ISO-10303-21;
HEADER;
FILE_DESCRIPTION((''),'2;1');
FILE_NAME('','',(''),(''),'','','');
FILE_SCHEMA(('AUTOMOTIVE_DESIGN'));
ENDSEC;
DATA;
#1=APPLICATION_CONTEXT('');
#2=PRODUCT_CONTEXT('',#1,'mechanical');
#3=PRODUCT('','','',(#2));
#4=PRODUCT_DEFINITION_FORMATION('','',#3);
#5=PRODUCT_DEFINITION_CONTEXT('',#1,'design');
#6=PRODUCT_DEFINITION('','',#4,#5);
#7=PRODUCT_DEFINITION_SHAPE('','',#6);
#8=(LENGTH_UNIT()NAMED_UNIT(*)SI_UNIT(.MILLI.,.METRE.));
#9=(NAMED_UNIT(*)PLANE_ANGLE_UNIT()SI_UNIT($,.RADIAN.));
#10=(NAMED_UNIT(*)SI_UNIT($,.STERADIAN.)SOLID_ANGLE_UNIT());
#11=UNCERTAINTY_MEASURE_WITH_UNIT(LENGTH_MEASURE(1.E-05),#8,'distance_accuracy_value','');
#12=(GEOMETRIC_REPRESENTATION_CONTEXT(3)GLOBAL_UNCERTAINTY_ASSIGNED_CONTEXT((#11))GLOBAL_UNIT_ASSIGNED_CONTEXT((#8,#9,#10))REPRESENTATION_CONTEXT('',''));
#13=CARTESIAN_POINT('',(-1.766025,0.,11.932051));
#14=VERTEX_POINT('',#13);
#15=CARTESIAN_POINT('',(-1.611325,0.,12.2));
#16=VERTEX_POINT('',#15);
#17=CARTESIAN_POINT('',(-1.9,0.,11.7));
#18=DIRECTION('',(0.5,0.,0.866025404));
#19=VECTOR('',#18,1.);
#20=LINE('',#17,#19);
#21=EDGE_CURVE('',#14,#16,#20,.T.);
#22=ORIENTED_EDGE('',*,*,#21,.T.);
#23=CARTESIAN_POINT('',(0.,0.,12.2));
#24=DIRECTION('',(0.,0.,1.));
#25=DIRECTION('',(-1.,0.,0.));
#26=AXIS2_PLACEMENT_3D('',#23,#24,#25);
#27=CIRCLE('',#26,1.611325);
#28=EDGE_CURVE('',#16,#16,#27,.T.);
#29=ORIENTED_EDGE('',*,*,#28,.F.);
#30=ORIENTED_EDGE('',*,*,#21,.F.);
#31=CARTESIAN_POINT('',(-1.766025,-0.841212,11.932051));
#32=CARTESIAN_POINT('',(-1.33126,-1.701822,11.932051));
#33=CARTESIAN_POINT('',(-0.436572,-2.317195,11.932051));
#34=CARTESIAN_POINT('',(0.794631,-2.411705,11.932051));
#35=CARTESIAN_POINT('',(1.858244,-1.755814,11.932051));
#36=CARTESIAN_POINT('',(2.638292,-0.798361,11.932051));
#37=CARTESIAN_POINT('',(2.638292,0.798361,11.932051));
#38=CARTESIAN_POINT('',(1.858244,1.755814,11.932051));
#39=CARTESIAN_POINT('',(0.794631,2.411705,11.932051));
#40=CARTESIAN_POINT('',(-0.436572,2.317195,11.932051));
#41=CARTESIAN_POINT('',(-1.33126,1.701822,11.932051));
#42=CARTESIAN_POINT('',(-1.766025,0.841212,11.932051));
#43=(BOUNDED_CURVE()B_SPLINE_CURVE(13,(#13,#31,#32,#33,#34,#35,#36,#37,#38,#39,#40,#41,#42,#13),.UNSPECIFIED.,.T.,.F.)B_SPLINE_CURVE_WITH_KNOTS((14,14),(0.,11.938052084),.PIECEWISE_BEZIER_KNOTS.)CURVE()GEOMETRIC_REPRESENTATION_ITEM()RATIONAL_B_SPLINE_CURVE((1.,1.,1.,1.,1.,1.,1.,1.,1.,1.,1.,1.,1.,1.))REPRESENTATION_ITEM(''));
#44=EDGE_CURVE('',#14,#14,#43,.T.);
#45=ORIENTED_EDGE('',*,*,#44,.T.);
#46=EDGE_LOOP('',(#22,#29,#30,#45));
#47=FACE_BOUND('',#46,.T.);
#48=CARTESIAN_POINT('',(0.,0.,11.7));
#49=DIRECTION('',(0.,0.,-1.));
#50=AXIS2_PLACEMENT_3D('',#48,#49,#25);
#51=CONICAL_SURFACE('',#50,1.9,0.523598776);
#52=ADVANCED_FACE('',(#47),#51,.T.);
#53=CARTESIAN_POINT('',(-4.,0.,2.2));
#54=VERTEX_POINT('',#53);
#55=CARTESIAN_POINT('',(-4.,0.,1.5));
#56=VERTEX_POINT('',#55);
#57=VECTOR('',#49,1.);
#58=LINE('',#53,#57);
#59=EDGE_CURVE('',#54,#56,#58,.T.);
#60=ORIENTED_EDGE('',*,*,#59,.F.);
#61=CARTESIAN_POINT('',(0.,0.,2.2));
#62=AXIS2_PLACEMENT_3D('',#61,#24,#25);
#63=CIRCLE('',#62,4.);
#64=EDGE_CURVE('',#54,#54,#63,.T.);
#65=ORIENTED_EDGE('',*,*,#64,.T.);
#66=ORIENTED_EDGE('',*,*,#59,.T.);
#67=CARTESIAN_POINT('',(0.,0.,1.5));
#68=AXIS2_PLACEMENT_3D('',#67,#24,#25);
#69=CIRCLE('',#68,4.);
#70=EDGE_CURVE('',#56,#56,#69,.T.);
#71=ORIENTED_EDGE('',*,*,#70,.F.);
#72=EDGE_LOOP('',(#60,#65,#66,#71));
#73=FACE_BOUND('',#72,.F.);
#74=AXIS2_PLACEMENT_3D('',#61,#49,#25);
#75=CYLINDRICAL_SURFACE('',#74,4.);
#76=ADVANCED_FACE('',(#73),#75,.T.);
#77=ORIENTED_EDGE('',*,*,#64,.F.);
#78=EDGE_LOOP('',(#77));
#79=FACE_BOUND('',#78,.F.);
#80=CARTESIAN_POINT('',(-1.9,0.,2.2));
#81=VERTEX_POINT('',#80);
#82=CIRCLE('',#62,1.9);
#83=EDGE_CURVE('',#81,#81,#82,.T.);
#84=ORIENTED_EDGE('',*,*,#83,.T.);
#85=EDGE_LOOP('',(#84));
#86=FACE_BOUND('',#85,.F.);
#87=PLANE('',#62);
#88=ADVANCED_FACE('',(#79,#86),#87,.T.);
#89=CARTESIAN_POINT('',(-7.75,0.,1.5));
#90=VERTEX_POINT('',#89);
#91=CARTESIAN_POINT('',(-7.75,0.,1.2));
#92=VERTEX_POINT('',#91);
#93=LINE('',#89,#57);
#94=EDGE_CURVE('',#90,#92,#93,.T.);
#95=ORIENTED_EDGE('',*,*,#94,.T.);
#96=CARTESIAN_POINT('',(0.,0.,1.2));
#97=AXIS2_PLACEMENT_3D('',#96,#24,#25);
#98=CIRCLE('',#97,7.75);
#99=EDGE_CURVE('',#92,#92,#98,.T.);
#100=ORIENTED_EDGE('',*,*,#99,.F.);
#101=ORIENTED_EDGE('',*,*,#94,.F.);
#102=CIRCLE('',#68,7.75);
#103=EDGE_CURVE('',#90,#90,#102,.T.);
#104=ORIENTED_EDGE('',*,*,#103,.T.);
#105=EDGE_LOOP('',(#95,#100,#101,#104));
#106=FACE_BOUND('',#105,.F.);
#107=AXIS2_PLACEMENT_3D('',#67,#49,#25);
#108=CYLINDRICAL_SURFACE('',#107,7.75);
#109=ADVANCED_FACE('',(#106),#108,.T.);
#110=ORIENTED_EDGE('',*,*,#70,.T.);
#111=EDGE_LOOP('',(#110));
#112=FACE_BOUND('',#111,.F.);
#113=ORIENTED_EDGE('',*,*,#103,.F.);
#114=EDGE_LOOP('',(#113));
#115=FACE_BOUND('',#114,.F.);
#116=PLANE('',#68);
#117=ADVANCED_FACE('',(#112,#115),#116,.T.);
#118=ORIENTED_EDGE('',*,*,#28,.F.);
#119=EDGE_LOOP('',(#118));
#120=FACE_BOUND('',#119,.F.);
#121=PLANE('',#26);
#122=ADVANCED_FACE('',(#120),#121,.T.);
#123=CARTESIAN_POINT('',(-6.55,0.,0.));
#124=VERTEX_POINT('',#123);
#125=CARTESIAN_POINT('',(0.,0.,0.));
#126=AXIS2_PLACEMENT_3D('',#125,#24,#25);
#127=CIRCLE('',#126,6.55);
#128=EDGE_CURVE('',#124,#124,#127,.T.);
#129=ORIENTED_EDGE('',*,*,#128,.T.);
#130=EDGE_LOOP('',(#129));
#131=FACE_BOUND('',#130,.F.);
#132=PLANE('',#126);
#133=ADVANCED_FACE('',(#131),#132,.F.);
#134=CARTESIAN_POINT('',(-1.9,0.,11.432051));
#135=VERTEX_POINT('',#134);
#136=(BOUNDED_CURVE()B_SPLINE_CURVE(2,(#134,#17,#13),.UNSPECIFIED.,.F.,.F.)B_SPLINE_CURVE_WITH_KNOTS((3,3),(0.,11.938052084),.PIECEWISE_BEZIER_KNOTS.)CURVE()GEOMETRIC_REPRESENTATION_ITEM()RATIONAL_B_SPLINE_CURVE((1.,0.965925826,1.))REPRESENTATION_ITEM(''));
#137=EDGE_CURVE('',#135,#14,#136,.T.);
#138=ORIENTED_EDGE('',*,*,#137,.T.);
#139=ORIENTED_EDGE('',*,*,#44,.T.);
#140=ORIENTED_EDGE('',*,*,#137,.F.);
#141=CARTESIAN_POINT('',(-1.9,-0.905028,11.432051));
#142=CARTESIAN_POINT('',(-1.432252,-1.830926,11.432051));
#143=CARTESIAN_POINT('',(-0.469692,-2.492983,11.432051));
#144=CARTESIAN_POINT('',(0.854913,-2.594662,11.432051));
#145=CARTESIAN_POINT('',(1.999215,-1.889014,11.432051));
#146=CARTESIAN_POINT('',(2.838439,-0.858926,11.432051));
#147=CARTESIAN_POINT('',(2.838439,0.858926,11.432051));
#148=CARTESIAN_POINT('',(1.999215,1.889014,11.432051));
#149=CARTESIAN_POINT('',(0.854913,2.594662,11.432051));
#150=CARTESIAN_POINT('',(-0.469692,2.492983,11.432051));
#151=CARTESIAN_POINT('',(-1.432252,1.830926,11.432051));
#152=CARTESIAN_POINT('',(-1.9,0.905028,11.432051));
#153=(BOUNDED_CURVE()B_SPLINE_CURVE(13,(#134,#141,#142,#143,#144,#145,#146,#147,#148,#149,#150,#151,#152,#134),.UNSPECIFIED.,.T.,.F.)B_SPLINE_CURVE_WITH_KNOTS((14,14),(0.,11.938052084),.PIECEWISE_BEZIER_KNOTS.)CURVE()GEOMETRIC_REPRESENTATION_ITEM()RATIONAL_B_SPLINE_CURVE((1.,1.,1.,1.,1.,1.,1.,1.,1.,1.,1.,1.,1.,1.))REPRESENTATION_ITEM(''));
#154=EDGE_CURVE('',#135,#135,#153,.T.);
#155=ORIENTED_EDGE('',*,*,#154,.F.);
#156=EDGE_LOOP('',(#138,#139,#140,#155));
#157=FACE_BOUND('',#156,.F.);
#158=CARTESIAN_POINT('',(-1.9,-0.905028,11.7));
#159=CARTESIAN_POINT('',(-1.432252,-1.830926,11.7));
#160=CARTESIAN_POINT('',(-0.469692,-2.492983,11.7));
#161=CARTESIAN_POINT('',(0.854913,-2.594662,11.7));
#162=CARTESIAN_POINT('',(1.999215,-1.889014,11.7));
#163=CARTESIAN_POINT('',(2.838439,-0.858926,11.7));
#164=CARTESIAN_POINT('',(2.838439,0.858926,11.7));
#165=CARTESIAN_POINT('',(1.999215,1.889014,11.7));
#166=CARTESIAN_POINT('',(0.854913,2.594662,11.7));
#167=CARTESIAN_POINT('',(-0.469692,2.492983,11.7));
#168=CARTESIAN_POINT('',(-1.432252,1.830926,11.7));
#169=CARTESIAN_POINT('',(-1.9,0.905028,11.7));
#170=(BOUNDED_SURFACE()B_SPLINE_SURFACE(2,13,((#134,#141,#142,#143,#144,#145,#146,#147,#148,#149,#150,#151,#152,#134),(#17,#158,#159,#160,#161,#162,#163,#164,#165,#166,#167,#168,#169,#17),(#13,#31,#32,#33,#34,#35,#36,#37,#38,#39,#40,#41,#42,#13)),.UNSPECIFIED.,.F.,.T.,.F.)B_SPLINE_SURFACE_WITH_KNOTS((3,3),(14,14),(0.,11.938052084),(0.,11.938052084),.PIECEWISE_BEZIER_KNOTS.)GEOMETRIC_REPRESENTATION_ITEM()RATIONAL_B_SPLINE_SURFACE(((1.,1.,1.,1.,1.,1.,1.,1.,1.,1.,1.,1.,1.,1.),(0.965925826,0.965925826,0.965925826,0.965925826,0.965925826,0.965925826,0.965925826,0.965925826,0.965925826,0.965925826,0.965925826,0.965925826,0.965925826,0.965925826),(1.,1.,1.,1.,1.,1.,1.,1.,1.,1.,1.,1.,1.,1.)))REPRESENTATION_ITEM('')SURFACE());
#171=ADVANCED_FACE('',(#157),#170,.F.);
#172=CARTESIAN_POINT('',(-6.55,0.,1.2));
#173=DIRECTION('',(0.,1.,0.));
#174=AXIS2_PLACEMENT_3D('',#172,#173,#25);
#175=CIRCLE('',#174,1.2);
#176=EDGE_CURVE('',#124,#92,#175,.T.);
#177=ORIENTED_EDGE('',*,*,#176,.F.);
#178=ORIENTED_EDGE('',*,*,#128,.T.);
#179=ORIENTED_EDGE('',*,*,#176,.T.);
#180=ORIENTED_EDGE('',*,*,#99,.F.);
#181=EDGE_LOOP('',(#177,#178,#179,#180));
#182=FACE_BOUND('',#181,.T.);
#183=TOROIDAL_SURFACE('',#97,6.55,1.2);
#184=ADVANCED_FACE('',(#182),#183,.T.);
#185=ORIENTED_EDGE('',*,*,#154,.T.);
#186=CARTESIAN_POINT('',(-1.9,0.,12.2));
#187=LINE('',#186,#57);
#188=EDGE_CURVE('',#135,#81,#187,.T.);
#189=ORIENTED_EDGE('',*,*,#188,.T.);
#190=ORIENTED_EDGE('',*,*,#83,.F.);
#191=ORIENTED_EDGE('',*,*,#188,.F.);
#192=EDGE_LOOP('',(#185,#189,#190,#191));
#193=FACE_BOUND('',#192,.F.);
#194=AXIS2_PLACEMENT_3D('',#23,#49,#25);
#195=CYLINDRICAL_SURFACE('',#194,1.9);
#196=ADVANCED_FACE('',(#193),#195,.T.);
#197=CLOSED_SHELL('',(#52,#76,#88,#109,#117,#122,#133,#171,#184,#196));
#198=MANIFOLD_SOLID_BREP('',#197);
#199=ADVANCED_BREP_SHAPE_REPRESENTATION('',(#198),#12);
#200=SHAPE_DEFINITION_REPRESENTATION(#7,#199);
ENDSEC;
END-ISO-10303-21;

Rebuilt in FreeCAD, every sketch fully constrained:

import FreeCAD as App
import Part
import Sketcher


def edges_at(feature, points):
    """Names of the edges that pass closest to the given points."""
    edges = feature.Shape.Edges
    near = lambda p: min(range(len(edges)), key=lambda i: edges[i].distToShape(Part.Vertex(*p))[0])
    return sorted({f"Edge{near(p) + 1}" for p in points})

doc = App.newDocument("Part")
body = doc.addObject("PartDesign::Body", "Body")

sketch1 = body.newObject("Sketcher::SketchObject", "Sketch")
sketch1.AttachmentSupport = (doc.getObject("XZ_Plane"), [""])
sketch1.MapMode = "FlatFace"
sketch1.addGeometry([
    Part.LineSegment(App.Vector(-7.8, 0, 0), App.Vector(0, 0, 0)),
    Part.LineSegment(App.Vector(0, 0, 0), App.Vector(0, 12.2, 0)),
    Part.LineSegment(App.Vector(0, 12.2, 0), App.Vector(-1.9, 12.2, 0)),
    Part.LineSegment(App.Vector(-1.9, 12.2, 0), App.Vector(-1.9, 2.2, 0)),
    Part.LineSegment(App.Vector(-1.9, 2.2, 0), App.Vector(-4, 2.2, 0)),
    Part.LineSegment(App.Vector(-4, 2.2, 0), App.Vector(-4, 1.5, 0)),
    Part.LineSegment(App.Vector(-4, 1.5, 0), App.Vector(-7.8, 1.5, 0)),
    Part.LineSegment(App.Vector(-7.8, 1.5, 0), App.Vector(-7.8, 0, 0)),
], False)
sketch1.addConstraint([
    Sketcher.Constraint("Coincident", 0, 2, 1, 1),
    Sketcher.Constraint("Coincident", 1, 2, 2, 1),
    Sketcher.Constraint("Coincident", 2, 2, 3, 1),
    Sketcher.Constraint("Coincident", 3, 2, 4, 1),
    Sketcher.Constraint("Coincident", 4, 2, 5, 1),
    Sketcher.Constraint("Coincident", 5, 2, 6, 1),
    Sketcher.Constraint("Coincident", 6, 2, 7, 1),
    Sketcher.Constraint("Coincident", 7, 2, 0, 1),
    Sketcher.Constraint("Horizontal", 0),
    Sketcher.Constraint("Vertical", 1),
    Sketcher.Constraint("Horizontal", 2),
    Sketcher.Constraint("Vertical", 3),
    Sketcher.Constraint("Horizontal", 4),
    Sketcher.Constraint("Vertical", 5),
    Sketcher.Constraint("Horizontal", 6),
    Sketcher.Constraint("Vertical", 7),
    Sketcher.Constraint("Coincident", 0, 2, -1, 1),
    Sketcher.Constraint("DistanceY", 3, 2, 3, 1, 10.0),
    Sketcher.Constraint("DistanceX", 2, 2, 2, 1, 1.9),
    Sketcher.Constraint("DistanceX", 4, 2, 4, 1, 2.1),
    Sketcher.Constraint("DistanceY", 1, 1, 1, 2, 12.2),
    Sketcher.Constraint("DistanceY", 5, 2, 5, 1, 0.7),
    Sketcher.Constraint("DistanceX", 0, 1, 0, 2, 7.75),
])
revolution = body.newObject("PartDesign::Revolution", "Revolution")
revolution.Profile = sketch1
revolution.ReferenceAxis = (sketch1, ["V_Axis"])
revolution.Angle = 360
doc.recompute()

fillet = body.newObject("PartDesign::Fillet", "Fillet")
fillet.Base = (revolution, edges_at(revolution, [(7.75, 0, 0)]))
fillet.Radius = 1.2
doc.recompute()

chamfer = body.newObject("PartDesign::Chamfer", "Chamfer")
chamfer.Base = (fillet, edges_at(fillet, [(1.9, 0, 12.2)]))
chamfer.ChamferType = "Two distances"
chamfer.Size = 0.5
chamfer.Size2 = 0.288675
doc.recompute()

fillet2 = body.newObject("PartDesign::Fillet", "Fillet001")
fillet2.Base = (chamfer, edges_at(chamfer, [(1.9, 0, 11.7)]))
fillet2.Radius = 1

doc.recompute()
